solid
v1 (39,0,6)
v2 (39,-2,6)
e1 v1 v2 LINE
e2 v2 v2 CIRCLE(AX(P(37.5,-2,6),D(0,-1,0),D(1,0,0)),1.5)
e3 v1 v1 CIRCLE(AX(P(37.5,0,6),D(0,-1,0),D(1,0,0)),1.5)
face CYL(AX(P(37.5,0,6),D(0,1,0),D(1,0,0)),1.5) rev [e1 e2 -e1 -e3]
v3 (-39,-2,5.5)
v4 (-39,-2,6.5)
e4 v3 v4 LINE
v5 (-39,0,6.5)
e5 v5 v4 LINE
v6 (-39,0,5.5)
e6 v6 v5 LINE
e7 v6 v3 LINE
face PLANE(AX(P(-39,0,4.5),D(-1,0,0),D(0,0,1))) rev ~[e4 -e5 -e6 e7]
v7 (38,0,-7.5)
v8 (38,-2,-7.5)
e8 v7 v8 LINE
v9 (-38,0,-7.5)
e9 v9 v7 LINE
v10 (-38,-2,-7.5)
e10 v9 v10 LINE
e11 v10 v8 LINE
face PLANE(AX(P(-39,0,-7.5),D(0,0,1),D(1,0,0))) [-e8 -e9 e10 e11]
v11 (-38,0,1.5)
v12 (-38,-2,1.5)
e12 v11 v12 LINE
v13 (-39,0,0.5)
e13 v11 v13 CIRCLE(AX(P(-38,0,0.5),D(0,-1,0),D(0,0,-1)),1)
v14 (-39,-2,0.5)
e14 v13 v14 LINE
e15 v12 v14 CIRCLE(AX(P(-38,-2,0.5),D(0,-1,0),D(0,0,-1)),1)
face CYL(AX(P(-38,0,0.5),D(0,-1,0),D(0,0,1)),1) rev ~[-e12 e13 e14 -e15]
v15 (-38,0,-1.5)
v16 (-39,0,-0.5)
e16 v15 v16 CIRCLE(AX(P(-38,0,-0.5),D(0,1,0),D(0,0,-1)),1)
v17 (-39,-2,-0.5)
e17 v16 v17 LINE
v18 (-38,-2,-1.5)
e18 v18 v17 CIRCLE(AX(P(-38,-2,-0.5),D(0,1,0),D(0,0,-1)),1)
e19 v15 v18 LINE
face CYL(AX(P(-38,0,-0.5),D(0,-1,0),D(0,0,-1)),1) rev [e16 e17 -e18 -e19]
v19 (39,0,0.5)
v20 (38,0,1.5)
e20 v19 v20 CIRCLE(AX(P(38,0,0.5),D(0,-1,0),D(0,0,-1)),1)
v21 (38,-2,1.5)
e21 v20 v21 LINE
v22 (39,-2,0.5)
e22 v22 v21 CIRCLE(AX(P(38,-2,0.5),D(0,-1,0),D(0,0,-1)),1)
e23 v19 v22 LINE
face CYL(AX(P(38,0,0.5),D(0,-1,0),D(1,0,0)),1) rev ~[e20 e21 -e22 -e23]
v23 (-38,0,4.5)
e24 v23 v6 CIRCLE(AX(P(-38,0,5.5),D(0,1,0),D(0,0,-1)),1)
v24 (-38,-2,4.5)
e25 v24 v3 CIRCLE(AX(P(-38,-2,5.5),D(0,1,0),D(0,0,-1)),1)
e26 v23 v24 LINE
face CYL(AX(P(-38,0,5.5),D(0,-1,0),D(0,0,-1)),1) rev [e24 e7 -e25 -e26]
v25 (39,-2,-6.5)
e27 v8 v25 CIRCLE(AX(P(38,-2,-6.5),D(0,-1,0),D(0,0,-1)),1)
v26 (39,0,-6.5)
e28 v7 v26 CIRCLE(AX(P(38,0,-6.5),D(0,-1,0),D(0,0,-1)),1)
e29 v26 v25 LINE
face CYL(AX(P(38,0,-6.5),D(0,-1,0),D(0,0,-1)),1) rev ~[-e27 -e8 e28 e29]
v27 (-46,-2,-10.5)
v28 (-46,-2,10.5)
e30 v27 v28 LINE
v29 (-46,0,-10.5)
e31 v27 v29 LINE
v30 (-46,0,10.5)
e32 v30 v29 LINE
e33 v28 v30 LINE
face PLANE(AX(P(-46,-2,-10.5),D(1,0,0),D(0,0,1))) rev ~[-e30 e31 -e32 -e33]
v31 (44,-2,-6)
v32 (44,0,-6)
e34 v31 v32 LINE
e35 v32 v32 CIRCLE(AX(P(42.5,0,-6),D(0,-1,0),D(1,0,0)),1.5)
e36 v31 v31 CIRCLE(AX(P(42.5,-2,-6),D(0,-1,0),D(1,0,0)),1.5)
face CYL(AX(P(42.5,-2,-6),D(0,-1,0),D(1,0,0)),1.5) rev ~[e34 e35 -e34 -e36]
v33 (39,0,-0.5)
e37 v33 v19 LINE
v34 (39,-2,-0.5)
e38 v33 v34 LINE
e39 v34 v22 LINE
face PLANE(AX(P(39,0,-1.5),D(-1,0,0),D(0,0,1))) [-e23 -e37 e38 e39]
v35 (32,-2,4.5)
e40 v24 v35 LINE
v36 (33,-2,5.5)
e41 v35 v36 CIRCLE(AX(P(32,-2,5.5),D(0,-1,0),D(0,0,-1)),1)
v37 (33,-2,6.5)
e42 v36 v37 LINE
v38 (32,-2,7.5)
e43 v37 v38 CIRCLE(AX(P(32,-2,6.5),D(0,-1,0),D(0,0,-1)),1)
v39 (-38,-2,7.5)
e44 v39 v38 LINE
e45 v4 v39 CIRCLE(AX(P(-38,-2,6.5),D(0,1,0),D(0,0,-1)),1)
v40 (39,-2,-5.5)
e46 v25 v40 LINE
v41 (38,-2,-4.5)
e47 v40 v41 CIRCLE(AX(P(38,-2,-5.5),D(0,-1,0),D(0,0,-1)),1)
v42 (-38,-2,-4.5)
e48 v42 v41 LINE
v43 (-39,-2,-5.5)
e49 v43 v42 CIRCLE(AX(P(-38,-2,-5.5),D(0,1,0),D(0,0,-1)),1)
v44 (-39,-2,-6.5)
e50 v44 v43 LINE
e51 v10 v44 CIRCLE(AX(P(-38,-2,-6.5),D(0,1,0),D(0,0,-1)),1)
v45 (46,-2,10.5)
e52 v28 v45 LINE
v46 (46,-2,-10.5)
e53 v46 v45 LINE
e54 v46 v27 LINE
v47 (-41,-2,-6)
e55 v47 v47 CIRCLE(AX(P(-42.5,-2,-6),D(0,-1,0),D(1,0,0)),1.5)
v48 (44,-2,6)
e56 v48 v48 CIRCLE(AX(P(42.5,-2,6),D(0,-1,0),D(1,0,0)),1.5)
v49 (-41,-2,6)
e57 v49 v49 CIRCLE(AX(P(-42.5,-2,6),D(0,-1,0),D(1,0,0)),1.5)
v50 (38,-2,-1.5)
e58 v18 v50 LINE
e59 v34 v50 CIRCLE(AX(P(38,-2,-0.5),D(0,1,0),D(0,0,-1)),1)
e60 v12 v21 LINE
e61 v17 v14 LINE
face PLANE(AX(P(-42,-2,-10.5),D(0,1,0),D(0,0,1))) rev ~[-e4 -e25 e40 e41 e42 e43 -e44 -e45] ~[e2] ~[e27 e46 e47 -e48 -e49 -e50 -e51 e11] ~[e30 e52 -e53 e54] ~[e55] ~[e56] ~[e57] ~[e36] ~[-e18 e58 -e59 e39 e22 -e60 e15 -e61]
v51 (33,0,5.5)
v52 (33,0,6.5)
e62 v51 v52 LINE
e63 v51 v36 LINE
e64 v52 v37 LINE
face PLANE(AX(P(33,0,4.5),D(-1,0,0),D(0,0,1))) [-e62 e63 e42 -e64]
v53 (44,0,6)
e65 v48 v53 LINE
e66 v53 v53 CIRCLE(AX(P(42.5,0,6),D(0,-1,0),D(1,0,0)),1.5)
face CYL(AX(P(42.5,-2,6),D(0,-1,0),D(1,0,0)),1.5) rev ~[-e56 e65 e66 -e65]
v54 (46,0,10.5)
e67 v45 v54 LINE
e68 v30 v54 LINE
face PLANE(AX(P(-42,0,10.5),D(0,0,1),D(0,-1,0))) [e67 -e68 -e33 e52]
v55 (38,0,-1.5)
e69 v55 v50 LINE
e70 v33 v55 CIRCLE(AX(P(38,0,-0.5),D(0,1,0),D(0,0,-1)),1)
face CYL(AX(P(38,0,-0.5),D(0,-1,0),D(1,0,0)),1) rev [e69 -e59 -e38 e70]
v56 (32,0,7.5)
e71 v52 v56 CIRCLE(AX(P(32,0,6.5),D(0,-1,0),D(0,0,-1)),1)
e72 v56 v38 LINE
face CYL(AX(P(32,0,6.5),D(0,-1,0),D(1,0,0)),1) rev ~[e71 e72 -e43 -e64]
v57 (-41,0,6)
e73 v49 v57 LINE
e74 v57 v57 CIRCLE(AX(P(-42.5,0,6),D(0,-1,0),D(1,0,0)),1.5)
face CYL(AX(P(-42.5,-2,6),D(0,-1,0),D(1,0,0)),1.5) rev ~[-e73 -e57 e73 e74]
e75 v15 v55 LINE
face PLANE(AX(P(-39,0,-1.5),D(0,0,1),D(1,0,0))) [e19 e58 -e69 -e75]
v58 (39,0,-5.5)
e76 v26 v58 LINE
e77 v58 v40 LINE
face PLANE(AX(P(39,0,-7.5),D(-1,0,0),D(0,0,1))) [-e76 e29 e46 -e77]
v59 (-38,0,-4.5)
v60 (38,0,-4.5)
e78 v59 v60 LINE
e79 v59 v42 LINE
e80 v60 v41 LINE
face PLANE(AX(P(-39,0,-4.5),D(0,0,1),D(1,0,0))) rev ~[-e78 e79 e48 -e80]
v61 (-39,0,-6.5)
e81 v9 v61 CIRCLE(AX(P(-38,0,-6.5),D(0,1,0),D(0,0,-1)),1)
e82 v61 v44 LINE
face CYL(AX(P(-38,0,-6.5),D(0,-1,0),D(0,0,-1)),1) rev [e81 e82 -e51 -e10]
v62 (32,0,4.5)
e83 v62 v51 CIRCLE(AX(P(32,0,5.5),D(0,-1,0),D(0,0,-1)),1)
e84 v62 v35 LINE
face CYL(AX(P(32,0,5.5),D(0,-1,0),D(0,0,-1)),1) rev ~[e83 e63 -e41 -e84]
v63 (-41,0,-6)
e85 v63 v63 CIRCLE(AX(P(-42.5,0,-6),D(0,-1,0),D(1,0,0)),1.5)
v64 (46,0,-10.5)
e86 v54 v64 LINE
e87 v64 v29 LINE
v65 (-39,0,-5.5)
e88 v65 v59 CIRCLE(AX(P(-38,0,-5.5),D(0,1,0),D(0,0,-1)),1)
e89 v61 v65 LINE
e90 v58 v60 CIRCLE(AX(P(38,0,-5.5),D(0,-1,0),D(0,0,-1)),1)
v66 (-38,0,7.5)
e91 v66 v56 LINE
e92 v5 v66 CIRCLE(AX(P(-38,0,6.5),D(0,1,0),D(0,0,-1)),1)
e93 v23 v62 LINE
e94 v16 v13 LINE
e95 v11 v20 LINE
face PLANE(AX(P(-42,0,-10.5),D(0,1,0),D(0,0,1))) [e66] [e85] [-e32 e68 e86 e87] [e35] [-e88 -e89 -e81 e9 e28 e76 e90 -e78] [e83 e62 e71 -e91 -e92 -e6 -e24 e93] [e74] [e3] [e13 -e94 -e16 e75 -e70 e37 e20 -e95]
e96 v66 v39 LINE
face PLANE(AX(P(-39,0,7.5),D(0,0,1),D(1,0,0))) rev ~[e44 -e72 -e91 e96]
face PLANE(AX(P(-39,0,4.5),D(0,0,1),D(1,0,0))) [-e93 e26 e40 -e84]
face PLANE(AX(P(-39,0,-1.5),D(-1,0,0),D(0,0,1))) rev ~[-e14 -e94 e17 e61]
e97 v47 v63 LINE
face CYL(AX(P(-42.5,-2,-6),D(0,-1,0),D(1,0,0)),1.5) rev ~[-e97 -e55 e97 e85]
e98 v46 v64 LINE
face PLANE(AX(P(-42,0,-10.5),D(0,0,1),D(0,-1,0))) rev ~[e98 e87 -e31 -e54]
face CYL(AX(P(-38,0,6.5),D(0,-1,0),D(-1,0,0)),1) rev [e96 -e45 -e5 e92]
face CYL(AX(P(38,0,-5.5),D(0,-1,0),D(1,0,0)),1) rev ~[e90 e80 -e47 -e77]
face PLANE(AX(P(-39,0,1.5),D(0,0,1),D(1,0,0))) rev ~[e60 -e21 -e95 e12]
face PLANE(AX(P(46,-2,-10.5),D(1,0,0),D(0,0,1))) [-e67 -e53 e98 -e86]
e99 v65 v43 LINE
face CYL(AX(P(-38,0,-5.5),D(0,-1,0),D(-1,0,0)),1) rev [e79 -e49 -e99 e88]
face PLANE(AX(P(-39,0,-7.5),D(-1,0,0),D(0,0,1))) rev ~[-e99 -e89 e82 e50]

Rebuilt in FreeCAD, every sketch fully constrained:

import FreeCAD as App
import Part
import Sketcher
from FreeCAD import Vector
Q = App.Units.Quantity


def edges_at(feature, points):
    """Names of the edges that pass closest to the given points."""
    edges = feature.Shape.Edges
    near = lambda p: min(range(len(edges)), key=lambda i: edges[i].distToShape(Part.Vertex(*p))[0])
    return sorted({f"Edge{near(p) + 1}" for p in points})


def add_polygon(sketch, points):
    """Adds a closed chain of lines whose ends are joined by coincident constraints."""
    first, n = sketch.GeometryCount, len(points)
    for a, b in zip(points, points[1:] + points[:1]):
        sketch.addGeometry(Part.LineSegment(App.Vector(*a, 0), App.Vector(*b, 0)), False)
    for i in range(n):
        sketch.addConstraint(Sketcher.Constraint("Coincident", first + i, 2, first + (i + 1) % n, 1))

doc = App.newDocument("Part")
body = doc.addObject("PartDesign::Body", "Body")

sketch1 = doc.addObject("Sketcher::SketchObject", "Sketch")
body.addObject(sketch1)
sketch1.AttachmentSupport = (doc.XZ_Plane, [""])
sketch1.MapMode = "FlatFace"
add_polygon(sketch1, [(-42, 10.5), (-42, -10.5), (42, -10.5), (42, 10.5)])
add_polygon(sketch1, [(39, -7.5), (-39, -7.5), (-39, -4.5), (39, -4.5)])
add_polygon(sketch1, [(33, 4.5), (-39, 4.5), (-39, 7.5), (33, 7.5)])
add_polygon(sketch1, [(39, -1.5), (-39, -1.5), (-39, 1.5), (39, 1.5)])
sketch1.addGeometry(Part.Circle(Vector(37.5, 6, 0), Vector(0, 0, 1), 1.5), False)
sketch1.addConstraint(Sketcher.Constraint("Vertical", 0))
sketch1.addConstraint(Sketcher.Constraint("Horizontal", 1))
sketch1.addConstraint(Sketcher.Constraint("Vertical", 2))
sketch1.addConstraint(Sketcher.Constraint("Horizontal", 3))
sketch1.addConstraint(Sketcher.Constraint("Horizontal", 4))
sketch1.addConstraint(Sketcher.Constraint("Vertical", 5))
sketch1.addConstraint(Sketcher.Constraint("Horizontal", 6))
sketch1.addConstraint(Sketcher.Constraint("Vertical", 7))
sketch1.addConstraint(Sketcher.Constraint("Horizontal", 8))
sketch1.addConstraint(Sketcher.Constraint("Vertical", 9))
sketch1.addConstraint(Sketcher.Constraint("Horizontal", 10))
sketch1.addConstraint(Sketcher.Constraint("Vertical", 11))
sketch1.addConstraint(Sketcher.Constraint("Horizontal", 12))
sketch1.addConstraint(Sketcher.Constraint("Vertical", 13))
sketch1.addConstraint(Sketcher.Constraint("Horizontal", 14))
sketch1.addConstraint(Sketcher.Constraint("Vertical", 15))
sketch1.addConstraint(Sketcher.Constraint("Symmetric", 0, 2, 2, 2, -1, 1))
sketch1.addConstraint(Sketcher.Constraint("Symmetric", 6, 2, 8, 2, -1, 1))
sketch1.addConstraint(Sketcher.Constraint("Symmetric", 12, 2, 14, 2, -1, 1))
sketch1.addConstraint(Sketcher.Constraint("Symmetric", 4, 2, 9, 2, -1))
sketch1.addConstraint(Sketcher.Constraint("Vertical", 9, 2, 12, 2))
sketch1.addConstraint(Sketcher.Constraint("Equal", 11, 13))
sketch1.addConstraint(Sketcher.Constraint("Diameter", 16, Q("3 mm")))
sketch1.addConstraint(Sketcher.Constraint("DistanceX", 1, 1, 1, 2, Q("84 mm")))
sketch1.addConstraint(Sketcher.Constraint("DistanceX", 4, 2, 4, 1, Q("78 mm")))
sketch1.addConstraint(Sketcher.Constraint("DistanceX", 8, 2, 8, 1, Q("72 mm")))
sketch1.addConstraint(Sketcher.Constraint("DistanceY", 0, 2, 0, 1, Q("21 mm")))
sketch1.addConstraint(Sketcher.Constraint("DistanceY", 5, 1, 5, 2, Q("3 mm")))
sketch1.addConstraint(Sketcher.Constraint("DistanceY", -1, 1, 16, 3, Q("6 mm")))
sketch1.addConstraint(Sketcher.Constraint("DistanceY", 0, 2, 4, 2, Q("3 mm")))
sketch1.addConstraint(Sketcher.Constraint("DistanceX", -1, 1, 16, 3, Q("37.5 mm")))
pad1 = doc.addObject("PartDesign::Pad", "Pad")
body.addObject(pad1)
pad1.Profile = sketch1
pad1.Length = 2

sketch2 = doc.addObject("Sketcher::SketchObject", "Sketch001")
body.addObject(sketch2)
sketch2.AttachmentSupport = (doc.YZ_Plane, [""])
sketch2.MapMode = "FlatFace"
sketch2.AttachmentOffset = App.Placement(Vector(0, 0, 42), App.Rotation())
add_polygon(sketch2, [(-2, 10.5), (-2, -10.5), (0, -10.5), (0, 10.5)])
sketch2.addConstraint(Sketcher.Constraint("Vertical", 0))
sketch2.addConstraint(Sketcher.Constraint("Horizontal", 1))
sketch2.addConstraint(Sketcher.Constraint("Vertical", 2))
sketch2.addConstraint(Sketcher.Constraint("Horizontal", 3))
sketch2.addConstraint(Sketcher.Constraint("Symmetric", 1, 2, 2, 2, -1, 1))
sketch2.addConstraint(Sketcher.Constraint("DistanceX", 1, 1, 1, 2, Q("2 mm")))
sketch2.addConstraint(Sketcher.Constraint("DistanceY", 0, 2, 0, 1, Q("21 mm")))
pad2 = doc.addObject("PartDesign::Pad", "Pad001")
body.addObject(pad2)
pad2.Profile = sketch2
pad2.Length = 5

sketch3 = doc.addObject("Sketcher::SketchObject", "Sketch002")
body.addObject(sketch3)
sketch3.AttachmentSupport = (doc.YZ_Plane, [""])
sketch3.MapMode = "FlatFace"
sketch3.AttachmentOffset = App.Placement(Vector(0, 0, -42), App.Rotation())
add_polygon(sketch3, [(0, 10.5), (0, -10.5), (-2, -10.5), (-2, 10.5)])
sketch3.addConstraint(Sketcher.Constraint("Vertical", 0))
sketch3.addConstraint(Sketcher.Constraint("Horizontal", 1))
sketch3.addConstraint(Sketcher.Constraint("Vertical", 2))
sketch3.addConstraint(Sketcher.Constraint("Horizontal", 3))
sketch3.addConstraint(Sketcher.Constraint("Symmetric", 0, 2, 3, 2, -1, 1))
sketch3.addConstraint(Sketcher.Constraint("DistanceX", 1, 2, 1, 1, Q("2 mm")))
sketch3.addConstraint(Sketcher.Constraint("DistanceY", 0, 2, 0, 1, Q("21 mm")))
pad3 = doc.addObject("PartDesign::Pad", "Pad002")
body.addObject(pad3)
pad3.Profile = sketch3
pad3.Length = 5
pad3.Reversed = True

sketch4 = doc.addObject("Sketcher::SketchObject", "Sketch003")
body.addObject(sketch4)
sketch4.AttachmentSupport = (doc.XZ_Plane, [""])
sketch4.MapMode = "FlatFace"
sketch4.AttachmentOffset = App.Placement(Vector(0, 0, 2), App.Rotation())
sketch4.addGeometry(Part.Circle(Vector(-42.5, 6, 0), Vector(0, 0, 1), 1.5), False)
sketch4.addGeometry(Part.Circle(Vector(-42.5, -6, 0), Vector(0, 0, 1), 1.5), False)
sketch4.addGeometry(Part.Circle(Vector(42.5, 6, 0), Vector(0, 0, 1), 1.5), False)
sketch4.addGeometry(Part.Circle(Vector(42.5, -6, 0), Vector(0, 0, 1), 1.5), False)
sketch4.addConstraint(Sketcher.Constraint("Equal", 0, 1))
sketch4.addConstraint(Sketcher.Constraint("Equal", 1, 2))
sketch4.addConstraint(Sketcher.Constraint("Equal", 2, 3))
sketch4.addConstraint(Sketcher.Constraint("Symmetric", 1, 3, 2, 3, -1, 1))
sketch4.addConstraint(Sketcher.Constraint("Symmetric", 0, 3, 3, 3, -1, 1))
sketch4.addConstraint(Sketcher.Constraint("Symmetric", 0, 3, 2, 3, -2))
sketch4.addConstraint(Sketcher.Constraint("Diameter", 0, Q("3 mm")))
sketch4.addConstraint(Sketcher.Constraint("DistanceY", -1, 1, 0, 3, Q("6 mm")))
sketch4.addConstraint(Sketcher.Constraint("DistanceX", 0, 3, 2, 3, Q("85 mm")))
pocket1 = doc.addObject("PartDesign::Pocket", "Pocket")
body.addObject(pocket1)
pocket1.Profile = sketch4
pocket1.Length = 25
doc.recompute()

fillet = doc.addObject("PartDesign::Fillet", "Fillet")
body.addObject(fillet)
fillet.Base = (pocket1, edges_at(pocket1, [
    (-39, -1, 7.5),
    (-39, -1, 1.5),
    (-39, -1, -4.5),
    (-39, -1, 4.5),
    (-39, -1, -1.5),
    (-39, -1, -7.5),
    (33, -1, 7.5),
    (39, -1, 1.5),
    (39, -1, -4.5),
    (39, -1, -7.5),
    (39, -1, -1.5),
    (33, -1, 4.5),
]))
fillet.Radius = 1

sketch5 = doc.addObject("Sketcher::SketchObject", "Sketch004")
body.addObject(sketch5)
sketch5.AttachmentSupport = (doc.XZ_Plane, [""])
sketch5.MapMode = "FlatFace"
sketch5.AttachmentOffset = App.Placement(Vector(0, 0, 2), App.Rotation())
add_polygon(sketch5, [(-47, 10.5), (-47, -10.5), (-46, -10.5), (-46, 10.5)])
add_polygon(sketch5, [(46, 10.5), (46, -10.5), (47, -10.5), (47, 10.5)])
sketch5.addConstraint(Sketcher.Constraint("Vertical", 0))
sketch5.addConstraint(Sketcher.Constraint("Horizontal", 1))
sketch5.addConstraint(Sketcher.Constraint("Vertical", 2))
sketch5.addConstraint(Sketcher.Constraint("Horizontal", 3))
sketch5.addConstraint(Sketcher.Constraint("Vertical", 4))
sketch5.addConstraint(Sketcher.Constraint("Horizontal", 5))
sketch5.addConstraint(Sketcher.Constraint("Vertical", 6))
sketch5.addConstraint(Sketcher.Constraint("Horizontal", 7))
sketch5.addConstraint(Sketcher.Constraint("Symmetric", 2, 2, 4, 2, -1, 1))
sketch5.addConstraint(Sketcher.Constraint("Symmetric", 0, 2, 6, 2, -1, 1))
sketch5.addConstraint(Sketcher.Constraint("Horizontal", 1, 2, 4, 2))
sketch5.addConstraint(Sketcher.Constraint("DistanceX", 1, 1, 1, 2, Q("1 mm")))
sketch5.addConstraint(Sketcher.Constraint("DistanceY", 0, 2, 0, 1, Q("21 mm")))
sketch5.addConstraint(Sketcher.Constraint("DistanceX", 0, 2, -1, 1, Q("47 mm")))
pocket2 = doc.addObject("PartDesign::Pocket", "Pocket001")
body.addObject(pocket2)
pocket2.Profile = sketch5
pocket2.Length = 25

doc.recompute()
